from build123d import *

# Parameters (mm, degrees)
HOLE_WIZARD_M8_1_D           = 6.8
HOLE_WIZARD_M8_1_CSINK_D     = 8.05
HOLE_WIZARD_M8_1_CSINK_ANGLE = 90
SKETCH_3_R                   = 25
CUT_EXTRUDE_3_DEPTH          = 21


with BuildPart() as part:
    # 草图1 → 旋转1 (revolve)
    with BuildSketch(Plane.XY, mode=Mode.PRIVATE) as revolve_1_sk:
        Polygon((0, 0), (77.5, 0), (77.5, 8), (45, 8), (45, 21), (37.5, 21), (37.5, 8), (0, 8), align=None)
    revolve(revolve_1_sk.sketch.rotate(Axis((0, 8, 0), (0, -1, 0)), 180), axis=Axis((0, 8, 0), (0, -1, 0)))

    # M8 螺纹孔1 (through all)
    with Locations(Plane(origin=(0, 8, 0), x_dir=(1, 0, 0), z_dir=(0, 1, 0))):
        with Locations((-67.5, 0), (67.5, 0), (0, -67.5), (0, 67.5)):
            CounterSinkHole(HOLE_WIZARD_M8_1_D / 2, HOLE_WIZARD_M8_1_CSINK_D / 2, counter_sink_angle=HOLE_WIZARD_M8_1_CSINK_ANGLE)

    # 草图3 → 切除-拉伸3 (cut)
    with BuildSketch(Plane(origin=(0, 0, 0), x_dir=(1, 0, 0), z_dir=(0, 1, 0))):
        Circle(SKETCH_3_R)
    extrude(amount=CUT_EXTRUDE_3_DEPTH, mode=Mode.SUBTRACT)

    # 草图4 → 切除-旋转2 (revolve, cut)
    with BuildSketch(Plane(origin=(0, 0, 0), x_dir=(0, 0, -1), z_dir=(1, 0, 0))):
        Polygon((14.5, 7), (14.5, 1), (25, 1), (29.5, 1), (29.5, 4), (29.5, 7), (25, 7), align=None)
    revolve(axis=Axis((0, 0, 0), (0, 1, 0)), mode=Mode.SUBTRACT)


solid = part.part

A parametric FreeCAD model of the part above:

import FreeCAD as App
import Part
import Sketcher

doc = App.newDocument("Part")
params = doc.addObject("Spreadsheet::Sheet", "Params")
for row, (alias, value) in enumerate([
    ("sketch1_height", "8 mm"),
    ("sketch1_height2", "13 mm"),
    ("sketch1_width", "77.5 mm"),
    ("sketch1_width2", "32.5 mm"),
    ("sketch1_width3", "7.5 mm"),
    ("revolution_angle", "360 deg"),
    ("sketch2_diameter", "6.8 mm"),
    ("hole_diameter", "6.8 mm"),
    ("hole_csink_diameter", "8.05 mm"),
    ("sketch3_diameter", "50 mm"),
    ("pocket1_length", "21 mm"),
    ("sketch4_width", "6 mm"),
    ("sketch4_height", "15 mm"),
    ("groove_angle", "360 deg"),
], start=1):
    params.set(f"A{row}", alias)
    params.set(f"B{row}", "=" + value)
    params.setAlias(f"B{row}", alias)

body = doc.addObject("PartDesign::Body", "Body")

sketch1 = body.newObject("Sketcher::SketchObject", "Sketch")
sketch1.AttachmentSupport = (doc.getObject("XY_Plane"), [""])
sketch1.MapMode = "FlatFace"
sketch1.addGeometry([
    Part.LineSegment(App.Vector(0, 0, 0), App.Vector(78, 0, 0)),
    Part.LineSegment(App.Vector(78, 0, 0), App.Vector(78, 8, 0)),
    Part.LineSegment(App.Vector(78, 8, 0), App.Vector(45, 8, 0)),
    Part.LineSegment(App.Vector(45, 8, 0), App.Vector(45, 21, 0)),
    Part.LineSegment(App.Vector(45, 21, 0), App.Vector(38, 21, 0)),
    Part.LineSegment(App.Vector(38, 21, 0), App.Vector(38, 8, 0)),
    Part.LineSegment(App.Vector(38, 8, 0), App.Vector(0, 8, 0)),
    Part.LineSegment(App.Vector(0, 8, 0), App.Vector(0, 0, 0)),
], False)
sketch1.addConstraint([
    Sketcher.Constraint("Coincident", 0, 2, 1, 1),
    Sketcher.Constraint("Coincident", 1, 2, 2, 1),
    Sketcher.Constraint("Coincident", 2, 2, 3, 1),
    Sketcher.Constraint("Coincident", 3, 2, 4, 1),
    Sketcher.Constraint("Coincident", 4, 2, 5, 1),
    Sketcher.Constraint("Coincident", 5, 2, 6, 1),
    Sketcher.Constraint("Coincident", 6, 2, 7, 1),
    Sketcher.Constraint("Coincident", 7, 2, 0, 1),
    Sketcher.Constraint("Horizontal", 0),
    Sketcher.Constraint("Vertical", 1),
    Sketcher.Constraint("Horizontal", 2),
    Sketcher.Constraint("Vertical", 3),
    Sketcher.Constraint("Horizontal", 4),
    Sketcher.Constraint("Vertical", 5),
    Sketcher.Constraint("Horizontal", 6),
    Sketcher.Constraint("Vertical", 7),
    Sketcher.Constraint("Coincident", 7, 2, -1, 1),
    Sketcher.Constraint("Horizontal", 2, 2, 5, 2),
    Sketcher.Constraint("DistanceY", 1, 1, 1, 2, 8.0),
    Sketcher.Constraint("DistanceY", 3, 1, 3, 2, 13.0),
    Sketcher.Constraint("DistanceX", 0, 1, 0, 2, 77.5),
    Sketcher.Constraint("DistanceX", 2, 2, 2, 1, 32.5),
    Sketcher.Constraint("DistanceX", 4, 2, 4, 1, 7.5),
])
sketch1.setExpression("Constraints[18]", "Params.sketch1_height")
sketch1.setExpression("Constraints[19]", "Params.sketch1_height2")
sketch1.setExpression("Constraints[20]", "Params.sketch1_width")
sketch1.setExpression("Constraints[21]", "Params.sketch1_width2")
sketch1.setExpression("Constraints[22]", "Params.sketch1_width3")
revolution = body.newObject("PartDesign::Revolution", "Revolution")
revolution.Profile = sketch1
revolution.ReferenceAxis = (sketch1, ["V_Axis"])
revolution.setExpression("Angle", "Params.revolution_angle")

sketch2 = body.newObject("Sketcher::SketchObject", "Sketch001")
sketch2.AttachmentSupport = (doc.getObject("XZ_Plane"), [""])
sketch2.MapMode = "FlatFace"
sketch2.AttachmentOffset = App.Placement(App.Vector(0, 0, -8), App.Rotation())
sketch2.addGeometry([
    Part.Circle(App.Vector(-67.5, 0, 0), App.Vector(0, 0, 1), 3.4),
    Part.Circle(App.Vector(67.5, 0, 0), App.Vector(0, 0, 1), 3.4),
    Part.Circle(App.Vector(0, 67.5, 0), App.Vector(0, 0, 1), 3.4),
    Part.Circle(App.Vector(0, -67.5, 0), App.Vector(0, 0, 1), 3.4),
], False)
sketch2.addConstraint([
    Sketcher.Constraint("Equal", 0, 1),
    Sketcher.Constraint("Equal", 1, 2),
    Sketcher.Constraint("Equal", 2, 3),
    Sketcher.Constraint("Symmetric", 0, 3, 1, 3, -1, 1),
    Sketcher.Constraint("Symmetric", 2, 3, 3, 3, -1, 1),
    Sketcher.Constraint("PointOnObject", 0, 3, -1),
    Sketcher.Constraint("PointOnObject", 2, 3, -2),
    Sketcher.Constraint("Diameter", 0, 6.8),
    Sketcher.Constraint("DistanceX", 0, 3, 1, 3, 135.0),
    Sketcher.Constraint("DistanceY", 3, 3, 2, 3, 135.0),
])
sketch2.setExpression("Constraints[7]", "Params.sketch2_diameter")
doc.recompute()
hole = body.newObject("PartDesign::Hole", "Hole")
hole.Profile = sketch2
hole.ThreadType = "None"
hole.setExpression("Diameter", "Params.hole_diameter")
hole.DepthType = "ThroughAll"
hole.HoleCutType = "Countersink"
hole.setExpression("HoleCutDiameter", "Params.hole_csink_diameter")
hole.HoleCutCountersinkAngle = 90
hole.Reversed = True

sketch3 = body.newObject("Sketcher::SketchObject", "Sketch002")
sketch3.AttachmentSupport = (doc.getObject("XZ_Plane"), [""])
sketch3.MapMode = "FlatFace"
sketch3.addGeometry(Part.Circle(App.Vector(0, 0, 0), App.Vector(0, 0, 1), 25), False)
sketch3.addConstraint([
    Sketcher.Constraint("Coincident", 0, 3, -1, 1),
    Sketcher.Constraint("Diameter", 0, 50.0),
])
sketch3.setExpression("Constraints[1]", "Params.sketch3_diameter")
pocket1 = body.newObject("PartDesign::Pocket", "Pocket")
pocket1.Profile = sketch3
pocket1.setExpression("Length", "Params.pocket1_length")

sketch4 = body.newObject("Sketcher::SketchObject", "Sketch003")
sketch4.AttachmentSupport = (doc.getObject("YZ_Plane"), [""])
sketch4.MapMode = "FlatFace"
sketch4.addGeometry([
    Part.LineSegment(App.Vector(7, -14, 0), App.Vector(1, -14, 0)),
    Part.LineSegment(App.Vector(1, -14, 0), App.Vector(1, -30, 0)),
    Part.LineSegment(App.Vector(1, -30, 0), App.Vector(7, -30, 0)),
    Part.LineSegment(App.Vector(7, -30, 0), App.Vector(7, -14, 0)),
], False)
sketch4.addConstraint([
    Sketcher.Constraint("Coincident", 0, 2, 1, 1),
    Sketcher.Constraint("Coincident", 1, 2, 2, 1),
    Sketcher.Constraint("Coincident", 2, 2, 3, 1),
    Sketcher.Constraint("Coincident", 3, 2, 0, 1),
    Sketcher.Constraint("Horizontal", 0),
    Sketcher.Constraint("Vertical", 1),
    Sketcher.Constraint("Horizontal", 2),
    Sketcher.Constraint("Vertical", 3),
    Sketcher.Constraint("DistanceX", 0, 2, 0, 1, 6.0),
    Sketcher.Constraint("DistanceY", 1, 2, 1, 1, 15.0),
    Sketcher.Constraint("DistanceX", -1, 1, 0, 2, 1.0),
    Sketcher.Constraint("DistanceY", 0, 2, -1, 1, 14.5),
])
sketch4.setExpression("Constraints[8]", "Params.sketch4_width")
sketch4.setExpression("Constraints[9]", "Params.sketch4_height")
groove = body.newObject("PartDesign::Groove", "Groove")
groove.Profile = sketch4
groove.ReferenceAxis = (sketch4, ["H_Axis"])
groove.setExpression("Angle", "Params.groove_angle")

doc.recompute()
